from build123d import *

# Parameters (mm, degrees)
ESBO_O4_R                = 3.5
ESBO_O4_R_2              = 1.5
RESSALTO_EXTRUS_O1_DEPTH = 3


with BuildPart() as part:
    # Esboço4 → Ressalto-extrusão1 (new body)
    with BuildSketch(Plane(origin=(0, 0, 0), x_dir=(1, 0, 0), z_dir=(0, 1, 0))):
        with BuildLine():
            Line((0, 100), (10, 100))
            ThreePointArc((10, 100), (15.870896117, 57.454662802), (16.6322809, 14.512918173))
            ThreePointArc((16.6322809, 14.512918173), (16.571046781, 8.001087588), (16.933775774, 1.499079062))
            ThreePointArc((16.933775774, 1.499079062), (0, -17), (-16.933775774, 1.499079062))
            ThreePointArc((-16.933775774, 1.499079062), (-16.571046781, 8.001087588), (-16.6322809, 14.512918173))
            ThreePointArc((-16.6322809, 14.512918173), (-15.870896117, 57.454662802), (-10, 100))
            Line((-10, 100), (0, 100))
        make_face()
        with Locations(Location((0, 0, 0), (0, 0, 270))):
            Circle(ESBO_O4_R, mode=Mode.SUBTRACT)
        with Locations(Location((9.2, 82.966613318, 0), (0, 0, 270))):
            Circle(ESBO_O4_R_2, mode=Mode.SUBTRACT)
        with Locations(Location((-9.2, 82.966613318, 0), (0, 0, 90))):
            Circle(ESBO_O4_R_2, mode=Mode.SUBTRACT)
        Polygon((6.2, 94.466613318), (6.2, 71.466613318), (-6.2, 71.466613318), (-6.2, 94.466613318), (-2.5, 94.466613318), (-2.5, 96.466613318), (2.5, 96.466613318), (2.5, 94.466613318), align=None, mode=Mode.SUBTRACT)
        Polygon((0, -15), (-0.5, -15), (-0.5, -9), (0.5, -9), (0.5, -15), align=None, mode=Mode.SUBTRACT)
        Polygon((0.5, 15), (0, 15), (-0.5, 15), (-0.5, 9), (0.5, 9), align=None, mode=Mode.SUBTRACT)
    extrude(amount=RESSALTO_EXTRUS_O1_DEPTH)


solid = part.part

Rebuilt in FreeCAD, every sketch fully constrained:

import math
import FreeCAD as App
import Part
import Sketcher
from FreeCAD import Vector
Q = App.Units.Quantity


def add_polygon(sketch, points):
    """Adds a closed chain of lines whose ends are joined by coincident constraints."""
    first, n = sketch.GeometryCount, len(points)
    for a, b in zip(points, points[1:] + points[:1]):
        sketch.addGeometry(Part.LineSegment(App.Vector(*a, 0), App.Vector(*b, 0)), False)
    for i in range(n):
        sketch.addConstraint(Sketcher.Constraint("Coincident", first + i, 2, first + (i + 1) % n, 1))

doc = App.newDocument("Part")
body = doc.addObject("PartDesign::Body", "Body")

# Sketch on XZ plane
sketch1 = doc.addObject("Sketcher::SketchObject", "Sketch")
body.addObject(sketch1)
sketch1.AttachmentSupport = (doc.XZ_Plane, [""])
sketch1.MapMode = "FlatFace"
sketch1.addGeometry(Part.ArcOfCircle(Part.Circle(Vector(-343, -29.6, 0), Vector(0, 0, 1), 359.9), math.radians(-11.28), math.radians(2.4)), False)  # 0
sketch1.addGeometry(Part.LineSegment(Vector(10, -100, 0), Vector(-10, -100, 0)), False)  # 1
sketch1.addGeometry(Part.ArcOfCircle(Part.Circle(Vector(343, -29.6, 0), Vector(0, 0, 1), 359.9), math.radians(177.6), math.radians(191.28)), False)  # 2
sketch1.addGeometry(Part.ArcOfCircle(Part.Circle(Vector(-116.5, -10.3, 0), Vector(0, 0, 1), 100), math.radians(-2.4), math.radians(5.06)), False)  # 3
sketch1.addGeometry(Part.ArcOfCircle(Part.Circle(Vector(0, 0, 0), Vector(0, 0, 1), 17), math.radians(-5), math.radians(185)), False)  # 4
sketch1.addGeometry(Part.ArcOfCircle(Part.Circle(Vector(116.5, -10.3, 0), Vector(0, 0, 1), 100), math.radians(174.94), math.radians(182.4)), False)  # 5
add_polygon(sketch1, [(-0.5, 15), (-0.5, 9), (0.5, 9), (0.5, 15)])  # lines 6-9
sketch1.addGeometry(Part.Circle(Vector(0, 0, 0), Vector(0, 0, 1), 3.5), False)  # 10
add_polygon(sketch1, [(0.5, -15), (0.5, -9), (-0.5, -9), (-0.5, -15)])  # lines 11-14
sketch1.addGeometry(Part.Circle(Vector(9.2, -83, 0), Vector(0, 0, 1), 1.5), False)  # 15
add_polygon(sketch1, [(6.2, -94.5), (6.2, -71.5), (-6.2, -71.5), (-6.2, -94.5), (-2.5, -94.5), (-2.5, -96.5), (2.5, -96.5), (2.5, -94.5)])  # lines 16-23
sketch1.addGeometry(Part.Circle(Vector(-9.2, -83, 0), Vector(0, 0, 1), 1.5), False)  # 24
sketch1.addConstraint([
    Sketcher.Constraint("Coincident", 0, 1, 1, 1),
    Sketcher.Constraint("Coincident", 1, 2, 2, 2),
    Sketcher.Constraint("Tangent", 2, 1, 3, 1),
    Sketcher.Constraint("Tangent", 3, 2, 4, 2),
    Sketcher.Constraint("Tangent", 4, 1, 5, 1),
    Sketcher.Constraint("Tangent", 5, 2, 0, 2),
    Sketcher.Constraint("Horizontal", 1),
    Sketcher.Constraint("Vertical", 6),
    Sketcher.Constraint("Horizontal", 7),
    Sketcher.Constraint("Vertical", 8),
    Sketcher.Constraint("Horizontal", 9),
    Sketcher.Constraint("Vertical", 11),
    Sketcher.Constraint("Horizontal", 12),
    Sketcher.Constraint("Vertical", 13),
    Sketcher.Constraint("Horizontal", 14),
    Sketcher.Constraint("Vertical", 16),
    Sketcher.Constraint("Horizontal", 17),
    Sketcher.Constraint("Vertical", 18),
    Sketcher.Constraint("Horizontal", 19),
    Sketcher.Constraint("Vertical", 20),
    Sketcher.Constraint("Horizontal", 21),
    Sketcher.Constraint("Vertical", 22),
    Sketcher.Constraint("Horizontal", 23),
    Sketcher.Constraint("Coincident", 4, 3, -1, 1),
    Sketcher.Constraint("Coincident", 10, 3, -1, 1),
    Sketcher.Constraint("Equal", 0, 2),
    Sketcher.Constraint("Equal", 3, 5),
    Sketcher.Constraint("Equal", 15, 24),
    Sketcher.Constraint("Symmetric", 6, 2, 11, 2, -1, 1),
    Sketcher.Constraint("Symmetric", 8, 2, 13, 2, -1, 1),
    Sketcher.Constraint("Symmetric", 0, 3, 2, 3, -2),
    Sketcher.Constraint("Symmetric", 15, 3, 24, 3, -2),
    Sketcher.Constraint("Symmetric", 19, 2, 22, 2, -2),
    Sketcher.Constraint("Vertical", 8, 2, 11, 2),
    Sketcher.Constraint("Equal", 19, 23),
    Sketcher.Constraint("Diameter", 10, Q("7 mm")),
    Sketcher.Constraint("Diameter", 15, Q("3 mm")),
    Sketcher.Constraint("Radius", 3, Q("100 mm")),
    Sketcher.Constraint("Radius", 4, Q("17 mm")),
    Sketcher.Constraint("DistanceX", 1, 2, 1, 1, Q("20 mm")),
    Sketcher.Constraint("DistanceX", 7, 1, 7, 2, Q("1 mm")),
    Sketcher.Constraint("DistanceX", 21, 1, 21, 2, Q("5 mm")),
    Sketcher.Constraint("DistanceY", 6, 2, 6, 1, Q("6 mm")),
    Sketcher.Constraint("DistanceY", 16, 1, 16, 2, Q("23 mm")),
    Sketcher.Constraint("DistanceY", 20, 2, 20, 1, Q("2 mm")),
    Sketcher.Constraint("DistanceX", 17, 2, 17, 1, Q("12.4 mm")),
    Sketcher.Constraint("DistanceY", 1, 2, -1, 1, Q("100 mm")),
    Sketcher.Constraint("DistanceY", -1, 1, 6, 2, Q("9 mm")),
    Sketcher.Constraint("DistanceX", 16, 2, 15, 3, Q("3 mm")),
    Sketcher.Constraint("DistanceY", 15, 3, 16, 2, Q("11.5 mm")),
    Sketcher.Constraint("Radius", 0, Q("359.926166 mm")),
    Sketcher.Constraint("DistanceX", 3, 3, -1, 1, Q("116.544222 mm")),
    Sketcher.Constraint("DistanceY", 15, 3, -1, 1, Q("82.966613 mm")),
])
pad1 = doc.addObject("PartDesign::Pad", "Pad")
body.addObject(pad1)
pad1.Profile = sketch1
pad1.Length = 3
pad1.Reversed = True

doc.recompute()
